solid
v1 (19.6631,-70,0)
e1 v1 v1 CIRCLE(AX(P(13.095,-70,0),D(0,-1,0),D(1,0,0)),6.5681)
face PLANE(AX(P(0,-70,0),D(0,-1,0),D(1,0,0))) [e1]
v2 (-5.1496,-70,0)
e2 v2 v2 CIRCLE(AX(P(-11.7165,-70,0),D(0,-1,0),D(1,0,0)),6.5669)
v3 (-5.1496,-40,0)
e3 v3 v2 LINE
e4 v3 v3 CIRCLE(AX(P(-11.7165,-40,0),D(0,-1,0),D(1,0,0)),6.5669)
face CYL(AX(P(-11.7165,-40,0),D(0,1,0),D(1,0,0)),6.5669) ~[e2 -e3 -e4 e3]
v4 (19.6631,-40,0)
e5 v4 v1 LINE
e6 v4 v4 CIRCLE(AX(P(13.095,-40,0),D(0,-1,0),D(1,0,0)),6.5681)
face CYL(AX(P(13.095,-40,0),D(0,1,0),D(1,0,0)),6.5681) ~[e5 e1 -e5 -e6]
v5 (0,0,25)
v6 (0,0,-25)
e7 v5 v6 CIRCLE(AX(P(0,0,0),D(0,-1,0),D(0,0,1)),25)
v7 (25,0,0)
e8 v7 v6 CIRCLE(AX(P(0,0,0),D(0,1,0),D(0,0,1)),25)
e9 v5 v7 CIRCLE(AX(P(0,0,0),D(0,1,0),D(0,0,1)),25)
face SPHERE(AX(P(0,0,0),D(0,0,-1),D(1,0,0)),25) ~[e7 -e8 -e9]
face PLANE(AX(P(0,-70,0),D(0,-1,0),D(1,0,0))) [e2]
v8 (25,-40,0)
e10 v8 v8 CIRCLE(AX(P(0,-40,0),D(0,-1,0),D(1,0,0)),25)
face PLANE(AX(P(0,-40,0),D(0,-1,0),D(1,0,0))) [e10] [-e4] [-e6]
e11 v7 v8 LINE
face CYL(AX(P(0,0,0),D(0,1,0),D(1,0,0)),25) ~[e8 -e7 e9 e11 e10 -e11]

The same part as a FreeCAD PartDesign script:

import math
import FreeCAD as App
import Part
import Sketcher

doc = App.newDocument("Part")
params = doc.addObject("Spreadsheet::Sheet", "Params")
for row, (alias, value) in enumerate([
    ("sketch1_radius", "25 mm"),
    ("revolution_angle", "180 deg"),
    ("sketch2_diameter", "50 mm"),
    ("pad1_length", "40 mm"),
    ("pad2_length", "30 mm"),
], start=1):
    params.set(f"A{row}", alias)
    params.set(f"B{row}", "=" + value)
    params.setAlias(f"B{row}", alias)

body = doc.addObject("PartDesign::Body", "Body")

# Sketch on XZ plane
sketch1 = doc.addObject("Sketcher::SketchObject", "Sketch")
body.addObject(sketch1)
sketch1.AttachmentSupport = (doc.XZ_Plane, [""])
sketch1.MapMode = "FlatFace"
sketch1.addGeometry([
    Part.LineSegment(App.Vector(0, -25, 0), App.Vector(0, 25, 0)),
    Part.ArcOfCircle(Part.Circle(App.Vector(0, 0, 0), App.Vector(0, 0, 1), 25), math.radians(-90), math.radians(90)),
], False)
sketch1.addConstraint([
    Sketcher.Constraint("Coincident", 0, 1, 1, 1),
    Sketcher.Constraint("Coincident", 1, 2, 0, 2),
    Sketcher.Constraint("Vertical", 0),
    Sketcher.Constraint("Coincident", 1, 3, -1, 1),
    Sketcher.Constraint("PointOnObject", 0, 1, -2),
    Sketcher.Constraint("Radius", 1, 25.0),
])
sketch1.setExpression("Constraints[5]", "Params.sketch1_radius")
revolution = doc.addObject("PartDesign::Revolution", "Revolution")
body.addObject(revolution)
revolution.Profile = sketch1
revolution.ReferenceAxis = (sketch1, ["V_Axis"])
revolution.setExpression("Angle", "Params.revolution_angle")

# Sketch on XZ plane
sketch2 = doc.addObject("Sketcher::SketchObject", "Sketch001")
body.addObject(sketch2)
sketch2.AttachmentSupport = (doc.XZ_Plane, [""])
sketch2.MapMode = "FlatFace"
sketch2.addGeometry(Part.Circle(App.Vector(0, 0, 0), App.Vector(0, 0, 1), 25), False)
sketch2.addConstraint([
    Sketcher.Constraint("Coincident", 0, 3, -1, 1),
    Sketcher.Constraint("Diameter", 0, 50.0),
])
sketch2.setExpression("Constraints[1]", "Params.sketch2_diameter")
pad1 = doc.addObject("PartDesign::Pad", "Pad")
body.addObject(pad1)
pad1.Profile = sketch2
pad1.setExpression("Length", "Params.pad1_length")

# Sketch on XZ plane
sketch3 = doc.addObject("Sketcher::SketchObject", "Sketch002")
body.addObject(sketch3)
sketch3.AttachmentSupport = (doc.XZ_Plane, [""])
sketch3.MapMode = "FlatFace"
sketch3.AttachmentOffset = App.Placement(App.Vector(0, 0, 40), App.Rotation())
sketch3.addGeometry([
    Part.Circle(App.Vector(-12, 0, 0), App.Vector(0, 0, 1), 7),
    Part.Circle(App.Vector(13, 0, 0), App.Vector(0, 0, 1), 7),
], False)
sketch3.addConstraint([
    Sketcher.Constraint("PointOnObject", 0, 3, -1),
    Sketcher.Constraint("PointOnObject", 1, 3, -1),
    Sketcher.Constraint("Diameter", 0, 13.1338),
    Sketcher.Constraint("Diameter", 1, 13.1362),
    Sketcher.Constraint("DistanceX", -1, 1, 1, 3, 13.095),
    Sketcher.Constraint("DistanceX", 0, 3, -1, 1, 11.7165),
])
pad2 = doc.addObject("PartDesign::Pad", "Pad001")
body.addObject(pad2)
pad2.Profile = sketch3
pad2.setExpression("Length", "Params.pad2_length")

doc.recompute()
